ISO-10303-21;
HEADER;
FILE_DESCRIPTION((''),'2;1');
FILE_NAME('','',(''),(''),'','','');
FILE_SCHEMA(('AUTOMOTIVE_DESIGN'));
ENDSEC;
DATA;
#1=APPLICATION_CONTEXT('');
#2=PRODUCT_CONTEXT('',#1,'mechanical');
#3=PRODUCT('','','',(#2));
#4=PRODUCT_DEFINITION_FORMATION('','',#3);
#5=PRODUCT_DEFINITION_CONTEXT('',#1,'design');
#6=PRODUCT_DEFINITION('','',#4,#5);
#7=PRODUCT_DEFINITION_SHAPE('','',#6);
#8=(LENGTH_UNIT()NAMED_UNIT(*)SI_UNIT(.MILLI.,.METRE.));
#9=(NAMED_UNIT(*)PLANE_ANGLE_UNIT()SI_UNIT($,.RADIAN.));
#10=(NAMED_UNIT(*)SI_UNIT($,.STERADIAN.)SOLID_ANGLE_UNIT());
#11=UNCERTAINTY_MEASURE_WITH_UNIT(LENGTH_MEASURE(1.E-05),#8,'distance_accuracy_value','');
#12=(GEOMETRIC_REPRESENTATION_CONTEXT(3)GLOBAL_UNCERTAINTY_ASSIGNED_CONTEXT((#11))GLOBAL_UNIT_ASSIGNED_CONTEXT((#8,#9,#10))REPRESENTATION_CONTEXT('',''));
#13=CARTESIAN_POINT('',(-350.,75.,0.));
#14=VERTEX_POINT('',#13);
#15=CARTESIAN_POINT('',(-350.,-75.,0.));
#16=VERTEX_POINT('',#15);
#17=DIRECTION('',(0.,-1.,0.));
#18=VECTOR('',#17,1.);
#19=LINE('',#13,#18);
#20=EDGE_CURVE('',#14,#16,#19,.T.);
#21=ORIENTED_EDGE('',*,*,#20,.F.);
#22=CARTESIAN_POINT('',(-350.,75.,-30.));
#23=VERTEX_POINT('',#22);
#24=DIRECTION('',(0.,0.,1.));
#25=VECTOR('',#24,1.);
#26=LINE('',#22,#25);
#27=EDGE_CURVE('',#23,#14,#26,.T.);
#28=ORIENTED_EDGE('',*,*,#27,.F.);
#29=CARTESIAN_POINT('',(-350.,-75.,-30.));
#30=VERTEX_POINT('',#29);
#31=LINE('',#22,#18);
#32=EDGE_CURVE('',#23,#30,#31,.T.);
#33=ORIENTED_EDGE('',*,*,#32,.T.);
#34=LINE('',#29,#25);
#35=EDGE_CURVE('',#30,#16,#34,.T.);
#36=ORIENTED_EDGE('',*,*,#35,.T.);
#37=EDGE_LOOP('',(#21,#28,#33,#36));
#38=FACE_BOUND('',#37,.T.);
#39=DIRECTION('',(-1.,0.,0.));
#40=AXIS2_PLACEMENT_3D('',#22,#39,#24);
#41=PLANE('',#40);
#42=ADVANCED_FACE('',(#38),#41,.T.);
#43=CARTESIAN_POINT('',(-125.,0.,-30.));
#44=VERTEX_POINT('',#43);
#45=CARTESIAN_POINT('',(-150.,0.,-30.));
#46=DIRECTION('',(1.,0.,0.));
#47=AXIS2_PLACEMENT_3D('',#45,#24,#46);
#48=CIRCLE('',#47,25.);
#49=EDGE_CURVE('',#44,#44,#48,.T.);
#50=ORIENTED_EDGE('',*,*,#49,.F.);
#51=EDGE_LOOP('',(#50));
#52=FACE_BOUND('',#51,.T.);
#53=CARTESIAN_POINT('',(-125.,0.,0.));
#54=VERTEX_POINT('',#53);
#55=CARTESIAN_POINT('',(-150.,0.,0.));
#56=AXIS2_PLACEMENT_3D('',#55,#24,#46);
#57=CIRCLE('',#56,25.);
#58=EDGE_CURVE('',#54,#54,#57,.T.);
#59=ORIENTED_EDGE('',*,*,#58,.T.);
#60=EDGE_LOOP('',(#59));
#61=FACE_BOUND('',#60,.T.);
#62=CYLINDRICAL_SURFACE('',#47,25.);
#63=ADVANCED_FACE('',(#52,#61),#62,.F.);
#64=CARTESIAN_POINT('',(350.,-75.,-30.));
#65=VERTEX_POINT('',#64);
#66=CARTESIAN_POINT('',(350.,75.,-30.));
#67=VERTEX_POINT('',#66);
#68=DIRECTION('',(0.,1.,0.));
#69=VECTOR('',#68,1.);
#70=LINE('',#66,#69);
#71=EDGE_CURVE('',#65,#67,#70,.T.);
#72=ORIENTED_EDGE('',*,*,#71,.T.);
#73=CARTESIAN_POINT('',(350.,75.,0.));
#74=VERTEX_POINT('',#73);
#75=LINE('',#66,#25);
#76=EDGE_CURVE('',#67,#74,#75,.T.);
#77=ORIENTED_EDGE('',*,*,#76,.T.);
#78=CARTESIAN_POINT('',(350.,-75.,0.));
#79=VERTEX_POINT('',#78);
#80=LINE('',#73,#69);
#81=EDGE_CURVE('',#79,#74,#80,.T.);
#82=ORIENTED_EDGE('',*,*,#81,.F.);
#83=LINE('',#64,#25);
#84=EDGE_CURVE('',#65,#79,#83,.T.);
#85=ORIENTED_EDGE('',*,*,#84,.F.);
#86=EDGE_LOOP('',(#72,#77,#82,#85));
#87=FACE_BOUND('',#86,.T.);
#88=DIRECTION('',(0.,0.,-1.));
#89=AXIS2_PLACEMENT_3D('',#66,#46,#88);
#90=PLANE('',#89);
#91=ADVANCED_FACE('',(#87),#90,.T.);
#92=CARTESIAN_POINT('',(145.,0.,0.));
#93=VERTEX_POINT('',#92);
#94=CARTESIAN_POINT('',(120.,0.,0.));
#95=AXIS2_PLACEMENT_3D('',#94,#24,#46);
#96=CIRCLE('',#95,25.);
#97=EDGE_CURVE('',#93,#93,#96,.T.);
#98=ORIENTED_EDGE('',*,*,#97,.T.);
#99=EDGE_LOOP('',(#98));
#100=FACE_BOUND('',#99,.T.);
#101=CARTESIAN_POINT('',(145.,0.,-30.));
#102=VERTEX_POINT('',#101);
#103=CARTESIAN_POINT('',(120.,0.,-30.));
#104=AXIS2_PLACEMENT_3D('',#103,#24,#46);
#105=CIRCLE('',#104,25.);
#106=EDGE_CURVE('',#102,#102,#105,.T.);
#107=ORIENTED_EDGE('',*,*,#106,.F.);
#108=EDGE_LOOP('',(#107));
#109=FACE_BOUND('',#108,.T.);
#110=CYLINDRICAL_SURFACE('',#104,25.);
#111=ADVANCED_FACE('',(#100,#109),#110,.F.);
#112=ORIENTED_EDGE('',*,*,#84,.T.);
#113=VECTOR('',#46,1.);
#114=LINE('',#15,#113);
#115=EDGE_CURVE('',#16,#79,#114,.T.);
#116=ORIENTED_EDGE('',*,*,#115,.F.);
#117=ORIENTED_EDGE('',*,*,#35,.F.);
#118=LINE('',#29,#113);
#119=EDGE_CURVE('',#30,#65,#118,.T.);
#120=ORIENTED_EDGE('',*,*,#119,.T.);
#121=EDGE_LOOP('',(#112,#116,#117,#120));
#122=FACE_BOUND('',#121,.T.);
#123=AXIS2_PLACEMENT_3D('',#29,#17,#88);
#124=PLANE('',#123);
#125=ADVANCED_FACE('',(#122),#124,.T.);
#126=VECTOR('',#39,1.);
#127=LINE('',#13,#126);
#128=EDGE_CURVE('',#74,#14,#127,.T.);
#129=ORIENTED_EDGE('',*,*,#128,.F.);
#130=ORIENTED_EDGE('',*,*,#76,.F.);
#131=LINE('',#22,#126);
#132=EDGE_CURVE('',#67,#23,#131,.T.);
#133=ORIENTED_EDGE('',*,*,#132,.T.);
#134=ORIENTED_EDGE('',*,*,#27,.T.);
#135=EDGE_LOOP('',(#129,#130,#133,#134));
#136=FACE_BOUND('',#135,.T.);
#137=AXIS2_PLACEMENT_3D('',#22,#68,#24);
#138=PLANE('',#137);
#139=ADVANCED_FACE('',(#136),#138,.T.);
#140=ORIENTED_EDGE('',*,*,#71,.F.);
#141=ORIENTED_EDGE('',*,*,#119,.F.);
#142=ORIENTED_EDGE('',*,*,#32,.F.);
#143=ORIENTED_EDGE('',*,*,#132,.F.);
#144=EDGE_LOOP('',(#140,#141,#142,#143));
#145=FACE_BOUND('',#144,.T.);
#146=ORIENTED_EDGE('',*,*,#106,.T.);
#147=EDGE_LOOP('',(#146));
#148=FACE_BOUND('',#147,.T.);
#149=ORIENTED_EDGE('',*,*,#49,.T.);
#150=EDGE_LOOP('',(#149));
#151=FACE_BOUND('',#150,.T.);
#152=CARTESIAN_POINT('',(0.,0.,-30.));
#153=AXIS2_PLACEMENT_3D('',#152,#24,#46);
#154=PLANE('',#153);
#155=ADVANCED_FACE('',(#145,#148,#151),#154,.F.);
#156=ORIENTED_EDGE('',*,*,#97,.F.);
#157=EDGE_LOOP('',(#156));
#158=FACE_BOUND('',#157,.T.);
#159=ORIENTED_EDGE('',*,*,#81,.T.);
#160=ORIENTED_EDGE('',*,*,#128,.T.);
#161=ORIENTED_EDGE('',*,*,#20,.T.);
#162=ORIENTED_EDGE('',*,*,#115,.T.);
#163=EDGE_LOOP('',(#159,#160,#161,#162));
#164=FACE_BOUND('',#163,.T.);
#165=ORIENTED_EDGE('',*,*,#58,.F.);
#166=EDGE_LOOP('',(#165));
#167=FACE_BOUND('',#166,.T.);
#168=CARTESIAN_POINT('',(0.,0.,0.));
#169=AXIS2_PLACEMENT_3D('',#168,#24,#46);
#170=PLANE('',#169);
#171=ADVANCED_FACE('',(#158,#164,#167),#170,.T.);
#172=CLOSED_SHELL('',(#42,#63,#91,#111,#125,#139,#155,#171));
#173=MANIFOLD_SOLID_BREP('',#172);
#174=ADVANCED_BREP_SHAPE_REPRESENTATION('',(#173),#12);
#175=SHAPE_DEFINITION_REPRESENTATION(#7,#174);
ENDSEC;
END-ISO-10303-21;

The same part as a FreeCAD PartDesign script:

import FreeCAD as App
import Part
import Sketcher
from FreeCAD import Vector
Q = App.Units.Quantity

doc = App.newDocument("Part")
body = doc.addObject("PartDesign::Body", "Body")

sketch1 = doc.addObject("Sketcher::SketchObject", "Sketch")
body.addObject(sketch1)
sketch1.AttachmentSupport = (doc.XY_Plane, [""])
sketch1.MapMode = "FlatFace"
sketch1.addGeometry([
    Part.LineSegment(Vector(-350, 75, 0), Vector(-350, -75, 0)),
    Part.LineSegment(Vector(-350, -75, 0), Vector(350, -75, 0)),
    Part.LineSegment(Vector(350, -75, 0), Vector(350, 75, 0)),
    Part.LineSegment(Vector(350, 75, 0), Vector(-350, 75, 0)),
    Part.Circle(Vector(-150, 0, 0), Vector(0, 0, 1), 25),
    Part.Circle(Vector(120, 0, 0), Vector(0, 0, 1), 25),
], False)
sketch1.addConstraint([
    Sketcher.Constraint("Coincident", 0, 2, 1, 1),
    Sketcher.Constraint("Coincident", 1, 2, 2, 1),
    Sketcher.Constraint("Coincident", 2, 2, 3, 1),
    Sketcher.Constraint("Coincident", 3, 2, 0, 1),
    Sketcher.Constraint("Vertical", 0),
    Sketcher.Constraint("Horizontal", 1),
    Sketcher.Constraint("Vertical", 2),
    Sketcher.Constraint("Horizontal", 3),
    Sketcher.Constraint("Equal", 4, 5),
    Sketcher.Constraint("Symmetric", 0, 2, 2, 2, -1, 1),
    Sketcher.Constraint("PointOnObject", 4, 3, -1),
    Sketcher.Constraint("PointOnObject", 5, 3, -1),
    Sketcher.Constraint("Diameter", 4, Q("50 mm")),
    Sketcher.Constraint("DistanceX", 1, 1, 1, 2, Q("700 mm")),
    Sketcher.Constraint("DistanceY", 0, 2, 0, 1, Q("150 mm")),
    Sketcher.Constraint("DistanceX", 4, 3, -1, 1, Q("150 mm")),
    Sketcher.Constraint("DistanceX", -1, 1, 5, 3, Q("120 mm")),
])
pad1 = doc.addObject("PartDesign::Pad", "Pad")
body.addObject(pad1)
pad1.Profile = sketch1
pad1.Length = 30
pad1.Reversed = True

doc.recompute()
